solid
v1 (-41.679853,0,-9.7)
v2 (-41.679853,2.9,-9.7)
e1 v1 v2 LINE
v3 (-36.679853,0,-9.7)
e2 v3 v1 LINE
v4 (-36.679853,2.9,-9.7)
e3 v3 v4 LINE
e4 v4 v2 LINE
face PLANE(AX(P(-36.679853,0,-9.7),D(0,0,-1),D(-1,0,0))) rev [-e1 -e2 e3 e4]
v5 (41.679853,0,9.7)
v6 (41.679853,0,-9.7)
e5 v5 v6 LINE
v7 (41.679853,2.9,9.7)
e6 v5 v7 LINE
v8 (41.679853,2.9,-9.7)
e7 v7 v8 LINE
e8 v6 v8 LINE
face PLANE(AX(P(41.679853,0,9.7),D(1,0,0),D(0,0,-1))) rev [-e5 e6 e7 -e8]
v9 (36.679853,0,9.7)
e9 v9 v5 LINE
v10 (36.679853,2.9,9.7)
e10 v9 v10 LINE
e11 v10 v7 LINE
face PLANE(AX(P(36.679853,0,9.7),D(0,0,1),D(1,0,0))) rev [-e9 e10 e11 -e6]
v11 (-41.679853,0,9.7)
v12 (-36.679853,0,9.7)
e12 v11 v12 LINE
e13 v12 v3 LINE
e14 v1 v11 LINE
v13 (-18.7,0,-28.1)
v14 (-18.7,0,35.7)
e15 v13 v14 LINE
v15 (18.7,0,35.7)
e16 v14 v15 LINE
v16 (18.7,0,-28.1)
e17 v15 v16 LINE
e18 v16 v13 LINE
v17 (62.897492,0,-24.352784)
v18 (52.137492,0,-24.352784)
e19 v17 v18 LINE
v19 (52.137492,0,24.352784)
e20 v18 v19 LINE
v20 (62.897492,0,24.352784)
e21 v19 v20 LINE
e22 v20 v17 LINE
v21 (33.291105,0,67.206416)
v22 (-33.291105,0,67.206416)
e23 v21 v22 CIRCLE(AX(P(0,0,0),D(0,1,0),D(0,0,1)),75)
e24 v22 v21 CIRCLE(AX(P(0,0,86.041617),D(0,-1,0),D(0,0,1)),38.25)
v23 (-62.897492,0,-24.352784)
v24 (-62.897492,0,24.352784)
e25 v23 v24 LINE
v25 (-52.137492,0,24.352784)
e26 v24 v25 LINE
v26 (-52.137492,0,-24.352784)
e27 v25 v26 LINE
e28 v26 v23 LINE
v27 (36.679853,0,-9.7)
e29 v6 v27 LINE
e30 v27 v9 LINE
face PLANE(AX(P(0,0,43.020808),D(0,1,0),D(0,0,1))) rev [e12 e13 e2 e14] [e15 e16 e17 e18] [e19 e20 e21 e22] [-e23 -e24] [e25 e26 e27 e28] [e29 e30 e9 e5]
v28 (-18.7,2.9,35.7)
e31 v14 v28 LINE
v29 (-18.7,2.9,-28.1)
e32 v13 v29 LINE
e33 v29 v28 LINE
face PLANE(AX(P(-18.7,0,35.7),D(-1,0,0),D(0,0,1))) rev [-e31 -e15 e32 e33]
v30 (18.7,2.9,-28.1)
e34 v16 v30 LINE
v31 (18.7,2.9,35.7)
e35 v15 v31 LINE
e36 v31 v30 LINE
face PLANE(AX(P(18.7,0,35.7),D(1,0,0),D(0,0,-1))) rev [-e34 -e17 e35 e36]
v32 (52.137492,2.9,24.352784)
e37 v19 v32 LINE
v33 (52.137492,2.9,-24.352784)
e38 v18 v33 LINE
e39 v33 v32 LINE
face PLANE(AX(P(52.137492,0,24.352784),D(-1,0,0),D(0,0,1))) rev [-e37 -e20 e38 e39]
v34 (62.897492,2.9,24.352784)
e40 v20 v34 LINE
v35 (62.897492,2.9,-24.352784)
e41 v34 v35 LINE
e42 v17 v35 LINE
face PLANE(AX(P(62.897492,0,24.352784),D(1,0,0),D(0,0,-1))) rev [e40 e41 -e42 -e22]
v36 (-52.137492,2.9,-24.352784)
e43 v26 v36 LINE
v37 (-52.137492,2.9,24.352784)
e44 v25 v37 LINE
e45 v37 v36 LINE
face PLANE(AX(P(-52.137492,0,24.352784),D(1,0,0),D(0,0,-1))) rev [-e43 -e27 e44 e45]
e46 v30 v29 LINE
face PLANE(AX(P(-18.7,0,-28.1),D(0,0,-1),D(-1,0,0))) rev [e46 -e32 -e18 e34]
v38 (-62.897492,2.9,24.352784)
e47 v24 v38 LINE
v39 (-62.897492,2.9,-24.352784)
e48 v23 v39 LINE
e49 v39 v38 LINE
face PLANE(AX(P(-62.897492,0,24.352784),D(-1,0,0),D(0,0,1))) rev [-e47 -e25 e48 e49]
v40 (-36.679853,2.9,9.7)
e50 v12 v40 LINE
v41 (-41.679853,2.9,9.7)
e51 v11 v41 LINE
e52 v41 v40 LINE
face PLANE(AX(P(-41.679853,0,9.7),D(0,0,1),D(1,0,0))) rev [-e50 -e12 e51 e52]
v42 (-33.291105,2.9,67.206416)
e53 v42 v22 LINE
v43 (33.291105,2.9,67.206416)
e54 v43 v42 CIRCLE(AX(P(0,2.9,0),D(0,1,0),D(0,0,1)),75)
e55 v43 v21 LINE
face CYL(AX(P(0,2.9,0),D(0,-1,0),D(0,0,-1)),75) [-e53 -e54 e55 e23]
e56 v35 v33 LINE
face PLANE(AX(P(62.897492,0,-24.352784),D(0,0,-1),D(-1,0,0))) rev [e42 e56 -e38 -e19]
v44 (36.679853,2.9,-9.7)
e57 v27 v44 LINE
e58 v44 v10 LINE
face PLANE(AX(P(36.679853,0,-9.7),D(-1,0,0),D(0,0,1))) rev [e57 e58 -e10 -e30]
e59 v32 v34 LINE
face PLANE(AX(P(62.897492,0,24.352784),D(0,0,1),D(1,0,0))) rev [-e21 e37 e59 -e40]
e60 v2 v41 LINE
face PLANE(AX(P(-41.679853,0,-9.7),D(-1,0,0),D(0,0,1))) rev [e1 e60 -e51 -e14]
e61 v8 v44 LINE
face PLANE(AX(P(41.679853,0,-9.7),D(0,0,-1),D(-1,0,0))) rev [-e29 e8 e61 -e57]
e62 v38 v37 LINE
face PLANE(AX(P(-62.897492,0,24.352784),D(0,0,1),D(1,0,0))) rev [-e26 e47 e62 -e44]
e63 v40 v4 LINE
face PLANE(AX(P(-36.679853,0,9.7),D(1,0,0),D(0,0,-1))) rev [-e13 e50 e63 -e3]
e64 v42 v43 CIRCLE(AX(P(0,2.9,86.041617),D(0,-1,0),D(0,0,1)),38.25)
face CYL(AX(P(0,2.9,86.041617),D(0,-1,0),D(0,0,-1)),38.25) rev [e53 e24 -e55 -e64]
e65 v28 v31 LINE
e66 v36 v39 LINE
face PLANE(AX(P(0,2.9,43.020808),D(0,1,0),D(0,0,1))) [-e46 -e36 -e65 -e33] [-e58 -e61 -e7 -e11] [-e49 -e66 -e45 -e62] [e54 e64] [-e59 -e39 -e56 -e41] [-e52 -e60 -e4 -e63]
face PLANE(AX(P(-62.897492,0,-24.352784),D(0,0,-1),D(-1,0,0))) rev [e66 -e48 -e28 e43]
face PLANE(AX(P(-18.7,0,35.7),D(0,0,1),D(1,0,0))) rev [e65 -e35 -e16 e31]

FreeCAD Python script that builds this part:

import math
import FreeCAD as App
import Part
import Sketcher

V = App.Vector

doc = App.newDocument("Part")
body = doc.addObject("PartDesign::Body", "Body")

# Sketch on XZ plane
sketch1 = doc.addObject("Sketcher::SketchObject", "Sketch")
body.addObject(sketch1)
sketch1.AttachmentSupport = (doc.XZ_Plane, [""])
sketch1.MapMode = "FlatFace"
sketch1.addGeometry(Part.ArcOfCircle(Part.Circle(V(0, 0, 0), V(0, 0, 1), 75), math.radians(116), math.radians(424)), False)
sketch1.addGeometry(Part.ArcOfCircle(Part.Circle(V(0, 86, 0), V(0, 0, 1), 38), math.radians(-150), math.radians(-30)), False)
sketch1.addConstraint(Sketcher.Constraint("Coincident", 0, 1, 1, 1))
sketch1.addConstraint(Sketcher.Constraint("Coincident", 1, 2, 0, 2))
sketch1.addConstraint(Sketcher.Constraint("Coincident", 0, 3, -1, 1))
sketch1.addConstraint(Sketcher.Constraint("PointOnObject", 1, 3, -2))
sketch1.addConstraint(Sketcher.Constraint("Radius", 0, 75.0))
sketch1.addConstraint(Sketcher.Constraint("Radius", 1, 38.25))
sketch1.addConstraint(Sketcher.Constraint("DistanceY", 0, 1, 1, 3, 18.835201))
pad1 = doc.addObject("PartDesign::Pad", "Pad")
body.addObject(pad1)
pad1.Profile = sketch1
pad1.Length = 2.9
pad1.Reversed = True

# Sketch on XZ plane
sketch2 = doc.addObject("Sketcher::SketchObject", "Sketch001")
body.addObject(sketch2)
sketch2.AttachmentSupport = (doc.XZ_Plane, [""])
sketch2.MapMode = "FlatFace"
sketch2.AttachmentOffset = App.Placement(V(0, 0, -2.9), App.Rotation())
sketch2.addGeometry(Part.LineSegment(V(-19, -28, 0), V(-19, 36, 0)), False)
sketch2.addGeometry(Part.LineSegment(V(-19, 36, 0), V(19, 36, 0)), False)
sketch2.addGeometry(Part.LineSegment(V(19, 36, 0), V(19, -28, 0)), False)
sketch2.addGeometry(Part.LineSegment(V(19, -28, 0), V(-19, -28, 0)), False)
sketch2.addConstraint(Sketcher.Constraint("Coincident", 0, 2, 1, 1))
sketch2.addConstraint(Sketcher.Constraint("Coincident", 1, 2, 2, 1))
sketch2.addConstraint(Sketcher.Constraint("Coincident", 2, 2, 3, 1))
sketch2.addConstraint(Sketcher.Constraint("Coincident", 3, 2, 0, 1))
sketch2.addConstraint(Sketcher.Constraint("Vertical", 0))
sketch2.addConstraint(Sketcher.Constraint("Horizontal", 1))
sketch2.addConstraint(Sketcher.Constraint("Vertical", 2))
sketch2.addConstraint(Sketcher.Constraint("Horizontal", 3))
sketch2.addConstraint(Sketcher.Constraint("DistanceX", 1, 1, 1, 2, 37.4))
sketch2.addConstraint(Sketcher.Constraint("DistanceY", 0, 1, 0, 2, 63.8))
sketch2.addConstraint(Sketcher.Constraint("DistanceX", 0, 2, -1, 1, 18.7))
sketch2.addConstraint(Sketcher.Constraint("DistanceY", -1, 1, 0, 2, 35.7))
pocket1 = doc.addObject("PartDesign::Pocket", "Pocket")
body.addObject(pocket1)
pocket1.Profile = sketch2
pocket1.Type = "ThroughAll"
pocket1.Reversed = True

# Sketch on XZ plane
sketch3 = doc.addObject("Sketcher::SketchObject", "Sketch002")
body.addObject(sketch3)
sketch3.AttachmentSupport = (doc.XZ_Plane, [""])
sketch3.MapMode = "FlatFace"
sketch3.AttachmentOffset = App.Placement(V(0, 0, -2.9), App.Rotation())
sketch3.addGeometry(Part.LineSegment(V(52, -24, 0), V(52, 24, 0)), False)
sketch3.addGeometry(Part.LineSegment(V(52, 24, 0), V(63, 24, 0)), False)
sketch3.addGeometry(Part.LineSegment(V(63, 24, 0), V(63, -24, 0)), False)
sketch3.addGeometry(Part.LineSegment(V(63, -24, 0), V(52, -24, 0)), False)
sketch3.addGeometry(Part.LineSegment(V(-63, -24, 0), V(-63, 24, 0)), False)
sketch3.addGeometry(Part.LineSegment(V(-63, 24, 0), V(-52, 24, 0)), False)
sketch3.addGeometry(Part.LineSegment(V(-52, 24, 0), V(-52, -24, 0)), False)
sketch3.addGeometry(Part.LineSegment(V(-52, -24, 0), V(-63, -24, 0)), False)
sketch3.addConstraint(Sketcher.Constraint("Coincident", 0, 2, 1, 1))
sketch3.addConstraint(Sketcher.Constraint("Coincident", 1, 2, 2, 1))
sketch3.addConstraint(Sketcher.Constraint("Coincident", 2, 2, 3, 1))
sketch3.addConstraint(Sketcher.Constraint("Coincident", 3, 2, 0, 1))
sketch3.addConstraint(Sketcher.Constraint("Coincident", 4, 2, 5, 1))
sketch3.addConstraint(Sketcher.Constraint("Coincident", 5, 2, 6, 1))
sketch3.addConstraint(Sketcher.Constraint("Coincident", 6, 2, 7, 1))
sketch3.addConstraint(Sketcher.Constraint("Coincident", 7, 2, 4, 1))
sketch3.addConstraint(Sketcher.Constraint("Vertical", 0))
sketch3.addConstraint(Sketcher.Constraint("Horizontal", 1))
sketch3.addConstraint(Sketcher.Constraint("Vertical", 2))
sketch3.addConstraint(Sketcher.Constraint("Horizontal", 3))
sketch3.addConstraint(Sketcher.Constraint("Vertical", 4))
sketch3.addConstraint(Sketcher.Constraint("Horizontal", 5))
sketch3.addConstraint(Sketcher.Constraint("Vertical", 6))
sketch3.addConstraint(Sketcher.Constraint("Horizontal", 7))
sketch3.addConstraint(Sketcher.Constraint("Symmetric", 2, 2, 4, 2, -1, 1))
sketch3.addConstraint(Sketcher.Constraint("Symmetric", 0, 2, 6, 2, -1, 1))
sketch3.addConstraint(Sketcher.Constraint("Horizontal", 1, 2, 4, 2))
sketch3.addConstraint(Sketcher.Constraint("DistanceX", 1, 1, 1, 2, 10.76))
sketch3.addConstraint(Sketcher.Constraint("DistanceY", 0, 1, 0, 2, 48.705568))
sketch3.addConstraint(Sketcher.Constraint("DistanceX", -1, 1, 0, 2, 52.137492))
pocket2 = doc.addObject("PartDesign::Pocket", "Pocket001")
body.addObject(pocket2)
pocket2.Profile = sketch3
pocket2.Type = "ThroughAll"
pocket2.Reversed = True

# Sketch on XZ plane
sketch4 = doc.addObject("Sketcher::SketchObject", "Sketch003")
body.addObject(sketch4)
sketch4.AttachmentSupport = (doc.XZ_Plane, [""])
sketch4.MapMode = "FlatFace"
sketch4.AttachmentOffset = App.Placement(V(0, 0, -2.9), App.Rotation())
sketch4.addGeometry(Part.LineSegment(V(-42, -10, 0), V(-42, 10, 0)), False)
sketch4.addGeometry(Part.LineSegment(V(-42, 10, 0), V(-37, 10, 0)), False)
sketch4.addGeometry(Part.LineSegment(V(-37, 10, 0), V(-37, -10, 0)), False)
sketch4.addGeometry(Part.LineSegment(V(-37, -10, 0), V(-42, -10, 0)), False)
sketch4.addGeometry(Part.LineSegment(V(37, -10, 0), V(37, 10, 0)), False)
sketch4.addGeometry(Part.LineSegment(V(37, 10, 0), V(42, 10, 0)), False)
sketch4.addGeometry(Part.LineSegment(V(42, 10, 0), V(42, -10, 0)), False)
sketch4.addGeometry(Part.LineSegment(V(42, -10, 0), V(37, -10, 0)), False)
sketch4.addConstraint(Sketcher.Constraint("Coincident", 0, 2, 1, 1))
sketch4.addConstraint(Sketcher.Constraint("Coincident", 1, 2, 2, 1))
sketch4.addConstraint(Sketcher.Constraint("Coincident", 2, 2, 3, 1))
sketch4.addConstraint(Sketcher.Constraint("Coincident", 3, 2, 0, 1))
sketch4.addConstraint(Sketcher.Constraint("Coincident", 4, 2, 5, 1))
sketch4.addConstraint(Sketcher.Constraint("Coincident", 5, 2, 6, 1))
sketch4.addConstraint(Sketcher.Constraint("Coincident", 6, 2, 7, 1))
sketch4.addConstraint(Sketcher.Constraint("Coincident", 7, 2, 4, 1))
sketch4.addConstraint(Sketcher.Constraint("Vertical", 0))
sketch4.addConstraint(Sketcher.Constraint("Horizontal", 1))
sketch4.addConstraint(Sketcher.Constraint("Vertical", 2))
sketch4.addConstraint(Sketcher.Constraint("Horizontal", 3))
sketch4.addConstraint(Sketcher.Constraint("Vertical", 4))
sketch4.addConstraint(Sketcher.Constraint("Horizontal", 5))
sketch4.addConstraint(Sketcher.Constraint("Vertical", 6))
sketch4.addConstraint(Sketcher.Constraint("Horizontal", 7))
sketch4.addConstraint(Sketcher.Constraint("Symmetric", 2, 2, 4, 2, -1, 1))
sketch4.addConstraint(Sketcher.Constraint("Symmetric", 0, 2, 6, 2, -1, 1))
sketch4.addConstraint(Sketcher.Constraint("Horizontal", 1, 2, 4, 2))
sketch4.addConstraint(Sketcher.Constraint("DistanceX", 1, 1, 1, 2, 5.0))
sketch4.addConstraint(Sketcher.Constraint("DistanceY", 0, 1, 0, 2, 19.4))
sketch4.addConstraint(Sketcher.Constraint("DistanceX", 0, 2, -1, 1, 41.679853))
pocket3 = doc.addObject("PartDesign::Pocket", "Pocket002")
body.addObject(pocket3)
pocket3.Profile = sketch4
pocket3.Type = "ThroughAll"
pocket3.Reversed = True

doc.recompute()
